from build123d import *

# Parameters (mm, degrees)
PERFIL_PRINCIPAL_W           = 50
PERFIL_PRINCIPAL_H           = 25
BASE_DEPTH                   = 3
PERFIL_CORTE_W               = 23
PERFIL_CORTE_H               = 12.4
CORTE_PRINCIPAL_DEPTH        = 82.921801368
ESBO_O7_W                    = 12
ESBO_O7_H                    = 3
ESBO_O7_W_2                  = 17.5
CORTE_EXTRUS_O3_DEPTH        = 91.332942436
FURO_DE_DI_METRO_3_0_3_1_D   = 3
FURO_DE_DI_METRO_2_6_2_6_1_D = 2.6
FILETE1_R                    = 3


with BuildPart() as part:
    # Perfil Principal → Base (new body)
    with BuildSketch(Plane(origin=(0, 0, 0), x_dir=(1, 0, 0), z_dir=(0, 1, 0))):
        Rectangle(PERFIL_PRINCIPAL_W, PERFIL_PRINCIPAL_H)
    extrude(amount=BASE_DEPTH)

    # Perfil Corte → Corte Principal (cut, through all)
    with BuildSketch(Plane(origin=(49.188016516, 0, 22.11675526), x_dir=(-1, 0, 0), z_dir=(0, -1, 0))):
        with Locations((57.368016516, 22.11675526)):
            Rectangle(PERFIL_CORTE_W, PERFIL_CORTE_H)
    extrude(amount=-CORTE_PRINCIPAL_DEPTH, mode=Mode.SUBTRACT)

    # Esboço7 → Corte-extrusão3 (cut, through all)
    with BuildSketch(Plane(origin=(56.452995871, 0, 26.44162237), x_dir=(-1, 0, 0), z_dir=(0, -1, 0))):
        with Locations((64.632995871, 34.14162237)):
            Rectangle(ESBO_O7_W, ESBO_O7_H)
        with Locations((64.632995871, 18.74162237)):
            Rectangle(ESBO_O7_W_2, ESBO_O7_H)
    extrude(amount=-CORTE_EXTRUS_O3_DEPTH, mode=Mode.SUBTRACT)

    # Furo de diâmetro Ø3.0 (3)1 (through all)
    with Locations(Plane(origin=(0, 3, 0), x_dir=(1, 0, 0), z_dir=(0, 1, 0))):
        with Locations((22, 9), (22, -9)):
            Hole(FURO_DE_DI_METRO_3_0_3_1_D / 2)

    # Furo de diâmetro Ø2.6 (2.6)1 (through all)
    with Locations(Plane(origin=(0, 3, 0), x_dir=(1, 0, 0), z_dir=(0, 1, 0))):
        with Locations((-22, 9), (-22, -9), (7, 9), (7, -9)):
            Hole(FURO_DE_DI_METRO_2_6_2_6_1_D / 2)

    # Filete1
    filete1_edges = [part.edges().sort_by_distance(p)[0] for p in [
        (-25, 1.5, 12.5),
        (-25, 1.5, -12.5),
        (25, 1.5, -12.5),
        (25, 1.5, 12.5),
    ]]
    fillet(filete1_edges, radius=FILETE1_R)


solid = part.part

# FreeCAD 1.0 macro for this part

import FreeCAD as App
import Part
import Sketcher


def edges_at(feature, points):
    """Names of the edges that pass closest to the given points."""
    edges = feature.Shape.Edges
    near = lambda p: min(range(len(edges)), key=lambda i: edges[i].distToShape(Part.Vertex(*p))[0])
    return sorted({f"Edge{near(p) + 1}" for p in points})


def add_polygon(sketch, points):
    """Adds a closed chain of lines whose ends are joined by coincident constraints."""
    first, n = sketch.GeometryCount, len(points)
    for a, b in zip(points, points[1:] + points[:1]):
        sketch.addGeometry(Part.LineSegment(App.Vector(*a, 0), App.Vector(*b, 0)), False)
    for i in range(n):
        sketch.addConstraint(Sketcher.Constraint("Coincident", first + i, 2, first + (i + 1) % n, 1))

doc = App.newDocument("Part")
params = doc.addObject("Spreadsheet::Sheet", "Params")
for row, (alias, value) in enumerate([
    ("sketch1_width", "50 mm"),
    ("sketch1_height", "25 mm"),
    ("pad1_length", "3 mm"),
    ("sketch2_width", "23 mm"),
    ("sketch2_height", "12.4 mm"),
    ("sketch3_width", "12 mm"),
    ("sketch3_height", "3 mm"),
    ("sketch3_width2", "17.5 mm"),
    ("sketch4_diameter", "3 mm"),
    ("hole_diameter", "3 mm"),
    ("sketch5_diameter", "2.6 mm"),
    ("hole2_diameter", "2.6 mm"),
    ("fillet_radius", "3 mm"),
], start=1):
    params.set(f"A{row}", alias)
    params.set(f"B{row}", "=" + value)
    params.setAlias(f"B{row}", alias)

body = doc.addObject("PartDesign::Body", "Body")

# Sketch on XZ plane
sketch1 = doc.addObject("Sketcher::SketchObject", "Sketch")
body.addObject(sketch1)
sketch1.AttachmentSupport = (doc.XZ_Plane, [""])
sketch1.MapMode = "FlatFace"
add_polygon(sketch1, [(-25, -12), (-25, 12), (25, 12), (25, -12)])  # lines 0-3
sketch1.addConstraint(Sketcher.Constraint("Vertical", 0))
sketch1.addConstraint(Sketcher.Constraint("Horizontal", 1))
sketch1.addConstraint(Sketcher.Constraint("Vertical", 2))
sketch1.addConstraint(Sketcher.Constraint("Horizontal", 3))
sketch1.addConstraint(Sketcher.Constraint("Symmetric", 0, 2, 2, 2, -1, 1))
sketch1.addConstraint(Sketcher.Constraint("DistanceX", 1, 1, 1, 2, 50.0))
sketch1.addConstraint(Sketcher.Constraint("DistanceY", 0, 1, 0, 2, 25.0))
sketch1.setExpression("Constraints[9]", "Params.sketch1_width")
sketch1.setExpression("Constraints[10]", "Params.sketch1_height")
pad1 = doc.addObject("PartDesign::Pad", "Pad")
body.addObject(pad1)
pad1.Profile = sketch1
pad1.setExpression("Length", "Params.pad1_length")
pad1.Reversed = True

# Sketch on XZ plane
sketch2 = doc.addObject("Sketcher::SketchObject", "Sketch001")
body.addObject(sketch2)
sketch2.AttachmentSupport = (doc.XZ_Plane, [""])
sketch2.MapMode = "FlatFace"
add_polygon(sketch2, [(3, -6), (3, 6), (-20, 6), (-20, -6)])  # lines 0-3
sketch2.addConstraint(Sketcher.Constraint("Vertical", 0))
sketch2.addConstraint(Sketcher.Constraint("Horizontal", 1))
sketch2.addConstraint(Sketcher.Constraint("Vertical", 2))
sketch2.addConstraint(Sketcher.Constraint("Horizontal", 3))
sketch2.addConstraint(Sketcher.Constraint("DistanceX", 1, 2, 1, 1, 23.0))
sketch2.addConstraint(Sketcher.Constraint("DistanceY", 0, 1, 0, 2, 12.4))
sketch2.addConstraint(Sketcher.Constraint("DistanceY", -1, 1, 0, 2, 6.2))
sketch2.addConstraint(Sketcher.Constraint("DistanceX", -1, 1, 0, 2, 3.32))
sketch2.setExpression("Constraints[8]", "Params.sketch2_width")
sketch2.setExpression("Constraints[9]", "Params.sketch2_height")
pocket1 = doc.addObject("PartDesign::Pocket", "Pocket")
body.addObject(pocket1)
pocket1.Profile = sketch2
pocket1.Type = "ThroughAll"

# Sketch on XZ plane
sketch3 = doc.addObject("Sketcher::SketchObject", "Sketch002")
body.addObject(sketch3)
sketch3.AttachmentSupport = (doc.XZ_Plane, [""])
sketch3.MapMode = "FlatFace"
add_polygon(sketch3, [(-2.2, -9.2), (-2.2, -6.2), (-14.2, -6.2), (-14.2, -9.2)])  # lines 0-3
add_polygon(sketch3, [(0.6, 6.2), (0.6, 9.2), (-16.9, 9.2), (-16.9, 6.2)])  # lines 4-7
sketch3.addConstraint(Sketcher.Constraint("Vertical", 0))
sketch3.addConstraint(Sketcher.Constraint("Horizontal", 1))
sketch3.addConstraint(Sketcher.Constraint("Vertical", 2))
sketch3.addConstraint(Sketcher.Constraint("Horizontal", 3))
sketch3.addConstraint(Sketcher.Constraint("Vertical", 4))
sketch3.addConstraint(Sketcher.Constraint("Horizontal", 5))
sketch3.addConstraint(Sketcher.Constraint("Vertical", 6))
sketch3.addConstraint(Sketcher.Constraint("Horizontal", 7))
sketch3.addConstraint(Sketcher.Constraint("Equal", 2, 4))
sketch3.addConstraint(Sketcher.Constraint("DistanceX", 1, 2, 1, 1, 12.0))
sketch3.addConstraint(Sketcher.Constraint("DistanceY", 0, 1, 0, 2, 3.0))
sketch3.addConstraint(Sketcher.Constraint("DistanceX", 5, 2, 5, 1, 17.5))
sketch3.addConstraint(Sketcher.Constraint("DistanceY", 0, 2, -1, 1, 6.2))
sketch3.addConstraint(Sketcher.Constraint("DistanceY", -1, 1, 4, 2, 9.2))
sketch3.addConstraint(Sketcher.Constraint("DistanceX", 0, 2, -1, 1, 2.18))
sketch3.addConstraint(Sketcher.Constraint("DistanceX", -1, 1, 4, 2, 0.57))
sketch3.setExpression("Constraints[17]", "Params.sketch3_width")
sketch3.setExpression("Constraints[18]", "Params.sketch3_height")
sketch3.setExpression("Constraints[19]", "Params.sketch3_width2")
pocket2 = doc.addObject("PartDesign::Pocket", "Pocket001")
body.addObject(pocket2)
pocket2.Profile = sketch3
pocket2.Type = "ThroughAll"

# Sketch on XZ plane
sketch4 = doc.addObject("Sketcher::SketchObject", "Sketch003")
body.addObject(sketch4)
sketch4.AttachmentSupport = (doc.XZ_Plane, [""])
sketch4.MapMode = "FlatFace"
sketch4.AttachmentOffset = App.Placement(App.Vector(0, 0, -3), App.Rotation())
sketch4.addGeometry(Part.Circle(App.Vector(22, -9, 0), App.Vector(0, 0, 1), 1.5), False)
sketch4.addGeometry(Part.Circle(App.Vector(22, 9, 0), App.Vector(0, 0, 1), 1.5), False)
sketch4.addConstraint(Sketcher.Constraint("Equal", 0, 1))
sketch4.addConstraint(Sketcher.Constraint("Symmetric", 0, 3, 1, 3, -1))
sketch4.addConstraint(Sketcher.Constraint("Diameter", 0, 3.0))
sketch4.addConstraint(Sketcher.Constraint("DistanceX", -1, 1, 0, 3, 22.0))
sketch4.addConstraint(Sketcher.Constraint("DistanceY", 0, 3, -1, 1, 9.0))
sketch4.setExpression("Constraints[2]", "Params.sketch4_diameter")
doc.recompute()
hole = doc.addObject("PartDesign::Hole", "Hole")
body.addObject(hole)
hole.Profile = sketch4
hole.ThreadType = "None"
hole.setExpression("Diameter", "Params.hole_diameter")
hole.DepthType = "ThroughAll"
hole.Reversed = True

# Sketch on XZ plane
sketch5 = doc.addObject("Sketcher::SketchObject", "Sketch004")
body.addObject(sketch5)
sketch5.AttachmentSupport = (doc.XZ_Plane, [""])
sketch5.MapMode = "FlatFace"
sketch5.AttachmentOffset = App.Placement(App.Vector(0, 0, -3), App.Rotation())
sketch5.addGeometry(Part.Circle(App.Vector(-22, -9, 0), App.Vector(0, 0, 1), 1.3), False)
sketch5.addGeometry(Part.Circle(App.Vector(-22, 9, 0), App.Vector(0, 0, 1), 1.3), False)
sketch5.addGeometry(Part.Circle(App.Vector(7, -9, 0), App.Vector(0, 0, 1), 1.3), False)
sketch5.addGeometry(Part.Circle(App.Vector(7, 9, 0), App.Vector(0, 0, 1), 1.3), False)
sketch5.addConstraint(Sketcher.Constraint("Equal", 0, 1))
sketch5.addConstraint(Sketcher.Constraint("Equal", 1, 2))
sketch5.addConstraint(Sketcher.Constraint("Equal", 2, 3))
sketch5.addConstraint(Sketcher.Constraint("Symmetric", 0, 3, 1, 3, -1))
sketch5.addConstraint(Sketcher.Constraint("Symmetric", 2, 3, 3, 3, -1))
sketch5.addConstraint(Sketcher.Constraint("Horizontal", 0, 3, 2, 3))
sketch5.addConstraint(Sketcher.Constraint("Diameter", 0, 2.6))
sketch5.addConstraint(Sketcher.Constraint("DistanceX", 0, 3, -1, 1, 22.0))
sketch5.addConstraint(Sketcher.Constraint("DistanceY", 0, 3, -1, 1, 9.0))
sketch5.addConstraint(Sketcher.Constraint("DistanceX", -1, 1, 2, 3, 7.0))
sketch5.setExpression("Constraints[6]", "Params.sketch5_diameter")
doc.recompute()
hole2 = doc.addObject("PartDesign::Hole", "Hole001")
body.addObject(hole2)
hole2.Profile = sketch5
hole2.ThreadType = "None"
hole2.setExpression("Diameter", "Params.hole2_diameter")
hole2.DepthType = "ThroughAll"
hole2.Reversed = True
doc.recompute()

fillet = doc.addObject("PartDesign::Fillet", "Fillet")
body.addObject(fillet)
fillet.Base = (hole2, edges_at(hole2, [
    (-25, 1.5, 12.5),
    (-25, 1.5, -12.5),
    (25, 1.5, -12.5),
    (25, 1.5, 12.5),
]))
fillet.setExpression("Radius", "Params.fillet_radius")

doc.recompute()
